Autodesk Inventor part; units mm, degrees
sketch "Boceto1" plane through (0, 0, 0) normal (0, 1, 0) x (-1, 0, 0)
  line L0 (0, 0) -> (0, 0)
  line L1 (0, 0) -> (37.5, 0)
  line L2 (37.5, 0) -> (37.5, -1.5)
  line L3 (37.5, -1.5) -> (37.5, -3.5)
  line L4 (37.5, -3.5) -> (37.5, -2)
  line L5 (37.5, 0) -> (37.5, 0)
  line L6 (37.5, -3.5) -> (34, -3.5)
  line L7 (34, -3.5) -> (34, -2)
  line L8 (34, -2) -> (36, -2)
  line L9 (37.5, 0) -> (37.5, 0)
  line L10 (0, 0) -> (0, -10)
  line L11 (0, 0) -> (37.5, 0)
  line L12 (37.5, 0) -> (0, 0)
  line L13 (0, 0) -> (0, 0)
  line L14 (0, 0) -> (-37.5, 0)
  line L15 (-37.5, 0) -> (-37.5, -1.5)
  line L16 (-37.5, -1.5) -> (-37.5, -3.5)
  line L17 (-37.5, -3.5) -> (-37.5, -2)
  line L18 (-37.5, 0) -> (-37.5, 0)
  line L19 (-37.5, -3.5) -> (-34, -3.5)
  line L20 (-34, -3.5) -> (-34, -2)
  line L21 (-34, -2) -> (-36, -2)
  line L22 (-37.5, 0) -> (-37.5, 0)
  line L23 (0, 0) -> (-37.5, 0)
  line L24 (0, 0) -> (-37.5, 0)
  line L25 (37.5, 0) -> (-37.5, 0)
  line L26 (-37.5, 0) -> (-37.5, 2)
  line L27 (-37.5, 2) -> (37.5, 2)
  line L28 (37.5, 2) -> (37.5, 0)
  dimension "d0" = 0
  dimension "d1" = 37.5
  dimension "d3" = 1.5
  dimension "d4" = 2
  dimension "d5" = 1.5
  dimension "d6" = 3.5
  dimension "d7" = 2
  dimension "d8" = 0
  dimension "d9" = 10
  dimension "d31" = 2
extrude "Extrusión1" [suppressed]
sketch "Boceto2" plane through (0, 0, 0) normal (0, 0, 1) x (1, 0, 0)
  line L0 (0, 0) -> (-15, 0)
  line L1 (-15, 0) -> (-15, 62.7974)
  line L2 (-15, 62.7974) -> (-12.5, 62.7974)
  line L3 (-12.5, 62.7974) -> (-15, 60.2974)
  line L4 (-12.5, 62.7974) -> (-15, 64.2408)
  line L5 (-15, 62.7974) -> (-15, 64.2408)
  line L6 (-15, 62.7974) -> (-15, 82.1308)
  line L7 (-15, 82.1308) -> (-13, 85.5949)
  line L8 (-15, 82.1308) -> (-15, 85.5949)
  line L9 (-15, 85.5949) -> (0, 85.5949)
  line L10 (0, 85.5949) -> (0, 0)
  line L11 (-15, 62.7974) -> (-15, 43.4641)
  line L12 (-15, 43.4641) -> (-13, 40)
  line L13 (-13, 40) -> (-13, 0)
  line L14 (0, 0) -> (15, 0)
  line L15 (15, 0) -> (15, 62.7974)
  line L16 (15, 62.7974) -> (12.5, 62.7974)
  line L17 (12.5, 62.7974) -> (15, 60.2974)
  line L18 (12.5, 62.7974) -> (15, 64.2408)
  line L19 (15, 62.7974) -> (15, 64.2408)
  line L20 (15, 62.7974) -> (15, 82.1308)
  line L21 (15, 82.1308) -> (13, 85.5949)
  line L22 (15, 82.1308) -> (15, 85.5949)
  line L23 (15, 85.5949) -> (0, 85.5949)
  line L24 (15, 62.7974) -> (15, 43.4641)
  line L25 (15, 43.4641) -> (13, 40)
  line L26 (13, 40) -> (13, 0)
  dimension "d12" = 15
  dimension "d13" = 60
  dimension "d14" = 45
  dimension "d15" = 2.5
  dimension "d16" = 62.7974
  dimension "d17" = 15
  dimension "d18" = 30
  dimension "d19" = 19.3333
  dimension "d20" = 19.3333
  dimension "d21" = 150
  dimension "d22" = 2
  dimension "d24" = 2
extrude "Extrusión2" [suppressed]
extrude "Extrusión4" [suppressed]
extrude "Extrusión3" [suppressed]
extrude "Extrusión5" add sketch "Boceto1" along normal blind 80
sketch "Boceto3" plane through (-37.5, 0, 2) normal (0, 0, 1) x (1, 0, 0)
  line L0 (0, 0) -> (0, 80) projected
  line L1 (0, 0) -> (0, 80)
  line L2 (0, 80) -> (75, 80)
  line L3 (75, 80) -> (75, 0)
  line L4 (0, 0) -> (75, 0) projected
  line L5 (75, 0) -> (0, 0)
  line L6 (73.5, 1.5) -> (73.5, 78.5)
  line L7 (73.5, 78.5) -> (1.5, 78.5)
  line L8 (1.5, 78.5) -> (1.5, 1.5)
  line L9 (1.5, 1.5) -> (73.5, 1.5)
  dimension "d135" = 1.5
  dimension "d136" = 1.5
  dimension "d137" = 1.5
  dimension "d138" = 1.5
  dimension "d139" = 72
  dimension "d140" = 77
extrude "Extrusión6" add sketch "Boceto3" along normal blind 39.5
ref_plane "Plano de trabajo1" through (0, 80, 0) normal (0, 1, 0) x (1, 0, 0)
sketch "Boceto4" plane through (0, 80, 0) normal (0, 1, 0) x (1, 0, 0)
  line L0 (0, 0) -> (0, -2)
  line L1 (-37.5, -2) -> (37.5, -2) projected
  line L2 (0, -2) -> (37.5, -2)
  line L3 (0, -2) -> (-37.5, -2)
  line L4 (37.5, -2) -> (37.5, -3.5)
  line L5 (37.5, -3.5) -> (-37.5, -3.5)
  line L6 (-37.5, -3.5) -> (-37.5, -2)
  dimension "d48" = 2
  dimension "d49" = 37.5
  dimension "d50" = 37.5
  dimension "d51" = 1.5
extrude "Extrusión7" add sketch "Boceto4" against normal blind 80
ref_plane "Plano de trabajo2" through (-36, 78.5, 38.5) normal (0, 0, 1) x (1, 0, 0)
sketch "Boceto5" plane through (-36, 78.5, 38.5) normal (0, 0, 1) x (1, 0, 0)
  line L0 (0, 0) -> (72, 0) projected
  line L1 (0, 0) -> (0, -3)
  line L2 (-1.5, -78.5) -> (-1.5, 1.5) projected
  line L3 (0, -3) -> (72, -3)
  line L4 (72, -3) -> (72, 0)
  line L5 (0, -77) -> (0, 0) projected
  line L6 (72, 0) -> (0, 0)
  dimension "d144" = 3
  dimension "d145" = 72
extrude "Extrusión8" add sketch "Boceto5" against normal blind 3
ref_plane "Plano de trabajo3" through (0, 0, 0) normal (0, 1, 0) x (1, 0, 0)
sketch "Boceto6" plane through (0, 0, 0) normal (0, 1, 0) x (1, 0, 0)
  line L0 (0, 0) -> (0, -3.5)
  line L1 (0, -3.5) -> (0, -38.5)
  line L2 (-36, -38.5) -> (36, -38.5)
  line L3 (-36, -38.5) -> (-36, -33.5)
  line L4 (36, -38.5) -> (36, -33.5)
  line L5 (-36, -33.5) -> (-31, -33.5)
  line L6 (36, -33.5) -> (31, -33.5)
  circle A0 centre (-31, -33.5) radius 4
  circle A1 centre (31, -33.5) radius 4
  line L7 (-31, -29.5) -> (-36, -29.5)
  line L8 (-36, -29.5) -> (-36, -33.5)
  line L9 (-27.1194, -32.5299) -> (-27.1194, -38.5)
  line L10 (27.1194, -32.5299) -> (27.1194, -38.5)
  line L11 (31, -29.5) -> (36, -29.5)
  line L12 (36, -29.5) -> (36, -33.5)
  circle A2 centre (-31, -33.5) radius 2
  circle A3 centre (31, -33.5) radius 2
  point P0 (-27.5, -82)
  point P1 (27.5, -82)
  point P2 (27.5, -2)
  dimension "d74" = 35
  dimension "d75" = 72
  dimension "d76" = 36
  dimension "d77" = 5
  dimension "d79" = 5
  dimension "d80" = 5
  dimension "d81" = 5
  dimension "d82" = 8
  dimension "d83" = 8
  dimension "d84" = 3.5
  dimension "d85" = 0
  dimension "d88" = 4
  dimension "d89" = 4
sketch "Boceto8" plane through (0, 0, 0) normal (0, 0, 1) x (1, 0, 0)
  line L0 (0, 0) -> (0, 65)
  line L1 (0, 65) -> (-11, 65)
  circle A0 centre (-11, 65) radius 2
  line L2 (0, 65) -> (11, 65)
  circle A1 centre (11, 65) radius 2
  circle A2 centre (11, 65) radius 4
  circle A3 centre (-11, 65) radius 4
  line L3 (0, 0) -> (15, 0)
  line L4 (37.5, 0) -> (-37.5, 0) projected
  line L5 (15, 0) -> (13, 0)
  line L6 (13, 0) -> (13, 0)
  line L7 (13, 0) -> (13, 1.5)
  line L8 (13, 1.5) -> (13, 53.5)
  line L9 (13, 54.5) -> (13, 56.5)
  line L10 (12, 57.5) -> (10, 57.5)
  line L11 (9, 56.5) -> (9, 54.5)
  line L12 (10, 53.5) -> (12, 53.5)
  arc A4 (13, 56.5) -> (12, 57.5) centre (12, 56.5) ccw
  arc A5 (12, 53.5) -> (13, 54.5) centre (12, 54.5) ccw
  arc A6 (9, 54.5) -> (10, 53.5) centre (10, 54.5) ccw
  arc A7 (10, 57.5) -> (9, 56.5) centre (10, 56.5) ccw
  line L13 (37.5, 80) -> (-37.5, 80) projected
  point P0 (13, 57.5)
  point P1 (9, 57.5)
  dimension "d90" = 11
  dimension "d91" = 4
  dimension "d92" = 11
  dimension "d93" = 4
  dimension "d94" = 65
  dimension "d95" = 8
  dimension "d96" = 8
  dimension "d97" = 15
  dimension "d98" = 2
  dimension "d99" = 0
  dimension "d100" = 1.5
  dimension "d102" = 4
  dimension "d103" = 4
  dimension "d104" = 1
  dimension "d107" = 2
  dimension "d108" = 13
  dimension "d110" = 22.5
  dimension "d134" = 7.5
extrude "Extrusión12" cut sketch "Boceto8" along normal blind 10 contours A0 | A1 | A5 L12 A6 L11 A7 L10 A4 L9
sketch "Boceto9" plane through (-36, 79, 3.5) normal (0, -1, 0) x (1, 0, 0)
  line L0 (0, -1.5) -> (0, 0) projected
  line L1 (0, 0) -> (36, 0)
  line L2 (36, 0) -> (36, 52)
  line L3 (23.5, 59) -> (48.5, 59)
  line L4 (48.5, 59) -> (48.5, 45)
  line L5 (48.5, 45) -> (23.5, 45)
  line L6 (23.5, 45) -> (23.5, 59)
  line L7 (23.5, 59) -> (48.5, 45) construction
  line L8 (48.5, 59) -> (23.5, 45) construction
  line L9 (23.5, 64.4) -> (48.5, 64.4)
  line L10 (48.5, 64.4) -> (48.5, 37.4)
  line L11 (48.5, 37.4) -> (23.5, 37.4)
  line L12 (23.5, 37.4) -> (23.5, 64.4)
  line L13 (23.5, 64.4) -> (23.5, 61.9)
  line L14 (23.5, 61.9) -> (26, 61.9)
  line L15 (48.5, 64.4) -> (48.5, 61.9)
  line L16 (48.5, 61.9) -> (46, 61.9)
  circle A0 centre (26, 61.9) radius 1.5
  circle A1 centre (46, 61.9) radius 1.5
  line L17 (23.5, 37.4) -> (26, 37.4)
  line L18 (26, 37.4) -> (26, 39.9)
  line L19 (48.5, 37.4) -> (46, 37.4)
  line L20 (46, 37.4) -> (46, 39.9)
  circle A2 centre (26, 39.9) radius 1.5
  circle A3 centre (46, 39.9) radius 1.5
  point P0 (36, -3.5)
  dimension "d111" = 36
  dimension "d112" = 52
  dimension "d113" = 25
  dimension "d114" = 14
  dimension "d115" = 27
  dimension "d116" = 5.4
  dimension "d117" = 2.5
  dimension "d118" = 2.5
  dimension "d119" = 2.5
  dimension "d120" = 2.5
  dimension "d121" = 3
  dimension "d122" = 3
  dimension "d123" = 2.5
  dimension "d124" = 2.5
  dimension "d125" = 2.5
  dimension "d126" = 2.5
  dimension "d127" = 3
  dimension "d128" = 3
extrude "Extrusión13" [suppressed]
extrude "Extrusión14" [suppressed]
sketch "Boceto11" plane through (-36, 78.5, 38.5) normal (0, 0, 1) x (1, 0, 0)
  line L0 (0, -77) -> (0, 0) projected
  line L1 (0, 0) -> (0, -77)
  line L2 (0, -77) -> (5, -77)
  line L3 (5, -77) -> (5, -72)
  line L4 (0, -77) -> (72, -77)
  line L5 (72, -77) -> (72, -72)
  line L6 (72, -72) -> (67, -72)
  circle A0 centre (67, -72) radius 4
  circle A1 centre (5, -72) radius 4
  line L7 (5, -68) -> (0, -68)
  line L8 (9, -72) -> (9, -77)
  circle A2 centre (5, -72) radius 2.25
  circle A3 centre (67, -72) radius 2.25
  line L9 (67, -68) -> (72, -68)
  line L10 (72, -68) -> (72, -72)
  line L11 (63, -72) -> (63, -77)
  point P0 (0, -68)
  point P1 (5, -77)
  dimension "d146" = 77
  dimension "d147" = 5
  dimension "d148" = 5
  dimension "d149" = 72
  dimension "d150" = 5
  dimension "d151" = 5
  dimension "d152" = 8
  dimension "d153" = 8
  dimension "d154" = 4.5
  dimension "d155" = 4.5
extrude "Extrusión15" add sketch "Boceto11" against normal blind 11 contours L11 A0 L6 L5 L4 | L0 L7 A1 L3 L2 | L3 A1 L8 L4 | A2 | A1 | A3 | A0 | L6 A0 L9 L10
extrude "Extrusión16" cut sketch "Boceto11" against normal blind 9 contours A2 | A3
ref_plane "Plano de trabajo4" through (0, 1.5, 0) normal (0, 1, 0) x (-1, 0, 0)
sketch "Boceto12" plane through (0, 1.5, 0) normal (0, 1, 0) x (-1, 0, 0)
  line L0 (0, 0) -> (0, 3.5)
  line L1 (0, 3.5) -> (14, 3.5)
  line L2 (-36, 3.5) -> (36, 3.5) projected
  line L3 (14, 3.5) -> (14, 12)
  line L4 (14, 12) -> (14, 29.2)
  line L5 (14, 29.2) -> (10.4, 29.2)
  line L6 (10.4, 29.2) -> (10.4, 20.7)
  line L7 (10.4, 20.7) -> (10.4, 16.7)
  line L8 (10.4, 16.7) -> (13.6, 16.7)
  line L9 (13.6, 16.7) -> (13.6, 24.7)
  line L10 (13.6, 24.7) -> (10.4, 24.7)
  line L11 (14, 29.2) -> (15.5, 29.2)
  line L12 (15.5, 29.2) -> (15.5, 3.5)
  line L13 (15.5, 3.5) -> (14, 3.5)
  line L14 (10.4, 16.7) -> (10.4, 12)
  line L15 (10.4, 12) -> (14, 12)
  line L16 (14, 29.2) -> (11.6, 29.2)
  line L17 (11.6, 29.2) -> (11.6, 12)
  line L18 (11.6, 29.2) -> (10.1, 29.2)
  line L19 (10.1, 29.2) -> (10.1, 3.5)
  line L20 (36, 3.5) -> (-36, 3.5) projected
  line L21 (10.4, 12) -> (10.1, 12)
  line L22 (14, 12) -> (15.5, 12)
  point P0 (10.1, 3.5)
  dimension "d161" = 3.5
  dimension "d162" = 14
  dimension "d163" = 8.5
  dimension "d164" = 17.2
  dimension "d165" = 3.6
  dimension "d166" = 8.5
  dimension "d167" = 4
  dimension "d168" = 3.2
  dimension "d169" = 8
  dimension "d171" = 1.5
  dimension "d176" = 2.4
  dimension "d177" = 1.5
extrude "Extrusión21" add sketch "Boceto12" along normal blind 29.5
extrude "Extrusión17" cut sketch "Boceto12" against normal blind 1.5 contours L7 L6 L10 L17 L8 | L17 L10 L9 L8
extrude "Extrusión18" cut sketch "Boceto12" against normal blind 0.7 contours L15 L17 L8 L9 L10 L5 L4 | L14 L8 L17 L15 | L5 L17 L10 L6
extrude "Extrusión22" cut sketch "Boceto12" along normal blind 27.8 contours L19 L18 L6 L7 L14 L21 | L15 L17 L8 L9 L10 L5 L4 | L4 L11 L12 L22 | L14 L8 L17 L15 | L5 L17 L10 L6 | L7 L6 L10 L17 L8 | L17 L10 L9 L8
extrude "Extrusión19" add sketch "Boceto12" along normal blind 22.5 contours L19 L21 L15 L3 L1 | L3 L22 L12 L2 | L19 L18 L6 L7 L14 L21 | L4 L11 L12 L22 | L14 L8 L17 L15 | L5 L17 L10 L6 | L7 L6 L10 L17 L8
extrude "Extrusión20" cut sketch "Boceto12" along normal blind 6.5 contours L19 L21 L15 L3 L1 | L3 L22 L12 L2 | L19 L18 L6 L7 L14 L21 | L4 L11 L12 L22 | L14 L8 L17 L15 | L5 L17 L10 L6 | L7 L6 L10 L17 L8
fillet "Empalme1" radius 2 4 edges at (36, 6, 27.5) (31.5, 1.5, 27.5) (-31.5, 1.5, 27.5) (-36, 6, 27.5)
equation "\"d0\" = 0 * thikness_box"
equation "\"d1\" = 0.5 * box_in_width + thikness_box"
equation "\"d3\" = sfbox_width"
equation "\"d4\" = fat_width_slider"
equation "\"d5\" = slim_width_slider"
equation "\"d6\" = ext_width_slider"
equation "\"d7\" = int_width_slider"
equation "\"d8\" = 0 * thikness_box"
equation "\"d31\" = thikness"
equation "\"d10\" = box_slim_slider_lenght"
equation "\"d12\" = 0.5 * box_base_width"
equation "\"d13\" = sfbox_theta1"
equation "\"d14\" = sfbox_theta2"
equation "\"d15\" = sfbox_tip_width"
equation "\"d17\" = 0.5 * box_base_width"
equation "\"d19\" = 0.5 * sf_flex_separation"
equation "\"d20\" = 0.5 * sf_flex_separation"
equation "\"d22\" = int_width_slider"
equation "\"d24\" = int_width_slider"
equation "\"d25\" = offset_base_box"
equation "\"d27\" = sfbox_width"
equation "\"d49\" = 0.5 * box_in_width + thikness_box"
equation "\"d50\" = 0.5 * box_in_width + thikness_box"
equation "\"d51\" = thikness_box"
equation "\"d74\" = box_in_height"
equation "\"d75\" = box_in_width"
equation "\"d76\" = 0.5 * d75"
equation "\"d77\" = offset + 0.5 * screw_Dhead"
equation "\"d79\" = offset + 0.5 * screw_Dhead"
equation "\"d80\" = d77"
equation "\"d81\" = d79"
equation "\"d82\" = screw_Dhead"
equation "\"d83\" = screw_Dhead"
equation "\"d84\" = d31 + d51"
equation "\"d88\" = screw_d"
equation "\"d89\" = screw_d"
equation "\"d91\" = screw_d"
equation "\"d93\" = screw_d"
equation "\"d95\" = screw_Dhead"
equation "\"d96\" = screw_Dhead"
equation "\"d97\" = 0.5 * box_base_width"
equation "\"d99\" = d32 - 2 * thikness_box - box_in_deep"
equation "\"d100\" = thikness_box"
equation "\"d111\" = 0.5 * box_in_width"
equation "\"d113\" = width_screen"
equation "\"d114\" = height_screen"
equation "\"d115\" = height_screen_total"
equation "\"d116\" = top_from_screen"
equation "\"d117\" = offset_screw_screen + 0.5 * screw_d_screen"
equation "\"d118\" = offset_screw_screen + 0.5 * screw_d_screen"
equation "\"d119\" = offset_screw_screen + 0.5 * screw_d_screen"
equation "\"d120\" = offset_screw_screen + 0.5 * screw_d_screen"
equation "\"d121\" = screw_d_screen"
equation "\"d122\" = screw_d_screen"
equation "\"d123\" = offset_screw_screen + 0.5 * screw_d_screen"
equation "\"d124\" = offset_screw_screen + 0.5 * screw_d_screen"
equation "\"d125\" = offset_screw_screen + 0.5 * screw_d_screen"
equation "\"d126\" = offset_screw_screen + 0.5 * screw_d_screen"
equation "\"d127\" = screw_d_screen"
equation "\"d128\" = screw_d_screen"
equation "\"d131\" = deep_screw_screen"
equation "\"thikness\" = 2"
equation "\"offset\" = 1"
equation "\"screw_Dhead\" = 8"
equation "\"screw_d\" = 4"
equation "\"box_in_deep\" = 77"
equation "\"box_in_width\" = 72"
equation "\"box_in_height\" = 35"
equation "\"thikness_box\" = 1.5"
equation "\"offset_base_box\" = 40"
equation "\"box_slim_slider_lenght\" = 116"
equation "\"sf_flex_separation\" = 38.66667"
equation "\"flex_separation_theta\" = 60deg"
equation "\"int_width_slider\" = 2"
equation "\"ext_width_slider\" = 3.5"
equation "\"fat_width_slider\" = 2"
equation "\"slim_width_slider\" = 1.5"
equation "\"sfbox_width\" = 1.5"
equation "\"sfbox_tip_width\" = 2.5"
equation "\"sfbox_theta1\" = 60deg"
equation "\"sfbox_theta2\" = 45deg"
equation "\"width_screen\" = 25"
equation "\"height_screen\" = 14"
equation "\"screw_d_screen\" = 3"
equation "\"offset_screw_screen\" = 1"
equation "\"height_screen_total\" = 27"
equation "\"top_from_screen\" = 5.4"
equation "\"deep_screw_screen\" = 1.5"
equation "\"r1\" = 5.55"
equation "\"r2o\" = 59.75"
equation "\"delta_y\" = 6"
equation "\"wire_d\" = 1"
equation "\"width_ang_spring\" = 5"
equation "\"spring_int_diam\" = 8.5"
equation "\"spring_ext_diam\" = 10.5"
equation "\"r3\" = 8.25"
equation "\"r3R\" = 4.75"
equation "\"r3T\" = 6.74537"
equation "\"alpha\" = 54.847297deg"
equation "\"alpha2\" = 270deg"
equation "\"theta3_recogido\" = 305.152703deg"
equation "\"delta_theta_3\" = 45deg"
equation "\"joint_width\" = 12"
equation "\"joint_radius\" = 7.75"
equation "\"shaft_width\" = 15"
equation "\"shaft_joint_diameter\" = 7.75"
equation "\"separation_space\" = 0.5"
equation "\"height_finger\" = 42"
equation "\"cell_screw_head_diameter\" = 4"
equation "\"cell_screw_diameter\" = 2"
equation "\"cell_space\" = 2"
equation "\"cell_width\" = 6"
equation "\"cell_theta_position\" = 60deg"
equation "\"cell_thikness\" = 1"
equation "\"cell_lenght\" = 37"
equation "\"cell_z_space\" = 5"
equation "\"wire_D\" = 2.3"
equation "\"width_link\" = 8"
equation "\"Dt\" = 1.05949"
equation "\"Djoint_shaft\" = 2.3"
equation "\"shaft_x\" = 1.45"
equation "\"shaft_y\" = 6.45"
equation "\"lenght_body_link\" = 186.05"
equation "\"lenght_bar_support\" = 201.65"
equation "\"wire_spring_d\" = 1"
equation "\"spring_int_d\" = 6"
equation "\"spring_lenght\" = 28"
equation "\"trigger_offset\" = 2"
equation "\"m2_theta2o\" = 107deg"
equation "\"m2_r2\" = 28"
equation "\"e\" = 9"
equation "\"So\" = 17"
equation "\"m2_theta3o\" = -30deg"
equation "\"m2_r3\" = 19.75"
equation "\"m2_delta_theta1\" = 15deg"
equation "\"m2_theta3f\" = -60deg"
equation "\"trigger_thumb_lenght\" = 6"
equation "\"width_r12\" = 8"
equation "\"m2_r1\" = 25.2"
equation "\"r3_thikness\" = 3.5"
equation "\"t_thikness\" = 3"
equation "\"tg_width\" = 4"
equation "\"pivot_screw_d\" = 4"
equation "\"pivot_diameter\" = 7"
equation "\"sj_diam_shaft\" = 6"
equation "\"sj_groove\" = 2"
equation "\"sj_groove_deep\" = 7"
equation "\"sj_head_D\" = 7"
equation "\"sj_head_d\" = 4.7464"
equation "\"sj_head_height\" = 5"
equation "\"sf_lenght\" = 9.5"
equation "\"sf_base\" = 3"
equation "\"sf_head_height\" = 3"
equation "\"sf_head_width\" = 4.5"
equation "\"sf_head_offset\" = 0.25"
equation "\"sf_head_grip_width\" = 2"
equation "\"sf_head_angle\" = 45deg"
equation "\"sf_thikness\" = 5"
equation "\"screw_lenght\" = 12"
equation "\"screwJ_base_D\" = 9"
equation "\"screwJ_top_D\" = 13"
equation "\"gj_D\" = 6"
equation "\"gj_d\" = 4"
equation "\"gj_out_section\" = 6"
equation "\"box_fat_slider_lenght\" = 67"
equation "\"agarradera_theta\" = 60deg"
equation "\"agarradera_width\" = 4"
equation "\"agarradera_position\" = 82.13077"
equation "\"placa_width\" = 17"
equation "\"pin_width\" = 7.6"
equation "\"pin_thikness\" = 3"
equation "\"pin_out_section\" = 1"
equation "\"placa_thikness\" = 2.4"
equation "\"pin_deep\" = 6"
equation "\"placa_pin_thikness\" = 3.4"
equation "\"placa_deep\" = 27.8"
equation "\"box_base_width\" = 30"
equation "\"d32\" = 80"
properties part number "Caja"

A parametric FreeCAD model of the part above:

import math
import FreeCAD as App
import Part
import Sketcher
from FreeCAD import Vector


def edges_at(feature, points):
    """Names of the edges that pass closest to the given points."""
    edges = feature.Shape.Edges
    near = lambda p: min(range(len(edges)), key=lambda i: edges[i].distToShape(Part.Vertex(*p))[0])
    return sorted({f"Edge{near(p) + 1}" for p in points})


def add_polygon(sketch, points):
    """Adds a closed chain of lines whose ends are joined by coincident constraints."""
    first, n = sketch.GeometryCount, len(points)
    for a, b in zip(points, points[1:] + points[:1]):
        sketch.addGeometry(Part.LineSegment(App.Vector(*a, 0), App.Vector(*b, 0)), False)
    for i in range(n):
        sketch.addConstraint(Sketcher.Constraint("Coincident", first + i, 2, first + (i + 1) % n, 1))

doc = App.newDocument("Part")
body = doc.addObject("PartDesign::Body", "Body")

sketch1 = body.newObject("Sketcher::SketchObject", "Sketch")
sketch1.AttachmentSupport = (doc.getObject("XZ_Plane"), [""])
sketch1.MapMode = "FlatFace"
add_polygon(sketch1, [(37.5, 0), (-37.5, 0), (-37.5, 2), (37.5, 2)])
sketch1.addConstraint([
    Sketcher.Constraint("Horizontal", 0),
    Sketcher.Constraint("Vertical", 1),
    Sketcher.Constraint("Horizontal", 2),
    Sketcher.Constraint("Vertical", 3),
    Sketcher.Constraint("Symmetric", 0, 2, 3, 2, -1, 1),
    Sketcher.Constraint("DistanceY", 1, 1, 1, 2, 2.0),
    Sketcher.Constraint("DistanceX", 0, 2, -1, 1, 37.5),
])
pad1 = body.newObject("PartDesign::Pad", "Pad")
pad1.Profile = sketch1
pad1.Length = 80
pad1.Reversed = True

sketch2 = body.newObject("Sketcher::SketchObject", "Sketch001")
sketch2.AttachmentSupport = (doc.getObject("XY_Plane"), [""])
sketch2.MapMode = "FlatFace"
sketch2.AttachmentOffset = App.Placement(Vector(0, 0, 2), App.Rotation())
add_polygon(sketch2, [(-38, 80), (-38, 0), (38, 0), (38, 80)])
add_polygon(sketch2, [(36, 78), (36, 2), (-36, 2), (-36, 78)])
sketch2.addConstraint([
    Sketcher.Constraint("Vertical", 0),
    Sketcher.Constraint("Horizontal", 1),
    Sketcher.Constraint("Vertical", 2),
    Sketcher.Constraint("Horizontal", 3),
    Sketcher.Constraint("Vertical", 4),
    Sketcher.Constraint("Horizontal", 5),
    Sketcher.Constraint("Vertical", 6),
    Sketcher.Constraint("Horizontal", 7),
    Sketcher.Constraint("Symmetric", 0, 2, 1, 2, -1, 1),
    Sketcher.Constraint("DistanceX", 5, 2, 5, 1, 72.0),
    Sketcher.Constraint("DistanceY", 4, 2, 4, 1, 77.0),
    Sketcher.Constraint("DistanceY", -1, 1, 4, 2, 1.5),
    Sketcher.Constraint("DistanceX", 4, 2, 1, 2, 1.5),
    Sketcher.Constraint("DistanceX", 0, 2, 5, 2, 1.5),
    Sketcher.Constraint("DistanceY", 6, 2, 3, 2, 1.5),
])
pad2 = body.newObject("PartDesign::Pad", "Pad001")
pad2.Profile = sketch2
pad2.Length = 39.5

sketch3 = body.newObject("Sketcher::SketchObject", "Sketch002")
sketch3.AttachmentSupport = (doc.getObject("XZ_Plane"), [""])
sketch3.MapMode = "FlatFace"
sketch3.AttachmentOffset = App.Placement(Vector(0, 0, -80), App.Rotation())
add_polygon(sketch3, [(37.5, 2), (-37.5, 2), (-37.5, 3.5), (37.5, 3.5)])
sketch3.addConstraint([
    Sketcher.Constraint("Horizontal", 0),
    Sketcher.Constraint("Vertical", 1),
    Sketcher.Constraint("Horizontal", 2),
    Sketcher.Constraint("Vertical", 3),
    Sketcher.Constraint("DistanceY", 1, 1, 1, 2, 1.5),
    Sketcher.Constraint("DistanceY", -1, 1, 0, 2, 2.0),
    Sketcher.Constraint("DistanceX", 0, 2, -1, 1, 37.5),
    Sketcher.Constraint("DistanceX", -1, 1, 2, 2, 37.5),
])
pad3 = body.newObject("PartDesign::Pad", "Pad002")
pad3.Profile = sketch3
pad3.Length = 80

sketch4 = body.newObject("Sketcher::SketchObject", "Sketch003")
sketch4.AttachmentSupport = (doc.getObject("XY_Plane"), [""])
sketch4.MapMode = "FlatFace"
sketch4.AttachmentOffset = App.Placement(Vector(0, 0, 38.5), App.Rotation())
add_polygon(sketch4, [(36, 78.5), (-36, 78.5), (-36, 75.5), (36, 75.5)])
sketch4.addConstraint([
    Sketcher.Constraint("Horizontal", 0),
    Sketcher.Constraint("Vertical", 1),
    Sketcher.Constraint("Horizontal", 2),
    Sketcher.Constraint("Vertical", 3),
    Sketcher.Constraint("DistanceX", 0, 2, 0, 1, 72.0),
    Sketcher.Constraint("DistanceY", 1, 2, 1, 1, 3.0),
    Sketcher.Constraint("DistanceX", 0, 2, -1, 1, 36.0),
    Sketcher.Constraint("DistanceY", -1, 1, 0, 2, 78.5),
])
pad4 = body.newObject("PartDesign::Pad", "Pad003")
pad4.Profile = sketch4
pad4.Length = 3
pad4.Reversed = True

sketch5 = body.newObject("Sketcher::SketchObject", "Sketch004")
sketch5.AttachmentSupport = (doc.getObject("XY_Plane"), [""])
sketch5.MapMode = "FlatFace"
sketch5.addGeometry([
    Part.Circle(Vector(-11, 65, 0), Vector(0, 0, 1), 2),
    Part.Circle(Vector(11, 65, 0), Vector(0, 0, 1), 2),
    Part.ArcOfCircle(Part.Circle(Vector(12, 54.5, 0), Vector(0, 0, 1), 1), math.radians(-90), math.radians(0)),
    Part.LineSegment(Vector(13, 54.5, 0), Vector(13, 56.5, 0)),
    Part.ArcOfCircle(Part.Circle(Vector(12, 56.5, 0), Vector(0, 0, 1), 1), math.radians(0), math.radians(90)),
    Part.LineSegment(Vector(12, 57.5, 0), Vector(10, 57.5, 0)),
    Part.ArcOfCircle(Part.Circle(Vector(10, 56.5, 0), Vector(0, 0, 1), 1), math.radians(90), math.radians(180)),
    Part.LineSegment(Vector(9, 56.5, 0), Vector(9, 54.5, 0)),
    Part.ArcOfCircle(Part.Circle(Vector(10, 54.5, 0), Vector(0, 0, 1), 1), math.radians(180), math.radians(270)),
    Part.LineSegment(Vector(10, 53.5, 0), Vector(12, 53.5, 0)),
], False)
sketch5.addConstraint([
    Sketcher.Constraint("Tangent", 2, 2, 3, 1),
    Sketcher.Constraint("Tangent", 3, 2, 4, 1),
    Sketcher.Constraint("Tangent", 4, 2, 5, 1),
    Sketcher.Constraint("Tangent", 5, 2, 6, 1),
    Sketcher.Constraint("Tangent", 6, 2, 7, 1),
    Sketcher.Constraint("Tangent", 7, 2, 8, 1),
    Sketcher.Constraint("Tangent", 8, 2, 9, 1),
    Sketcher.Constraint("Tangent", 9, 2, 2, 1),
    Sketcher.Constraint("Vertical", 3),
    Sketcher.Constraint("Horizontal", 5),
    Sketcher.Constraint("Vertical", 7),
    Sketcher.Constraint("Horizontal", 9),
    Sketcher.Constraint("Equal", 0, 1),
    Sketcher.Constraint("Equal", 2, 4),
    Sketcher.Constraint("Equal", 4, 6),
    Sketcher.Constraint("Equal", 6, 8),
    Sketcher.Constraint("Symmetric", 0, 3, 1, 3, -2),
    Sketcher.Constraint("Equal", 9, 3),
    Sketcher.Constraint("Diameter", 0, 4.0),
    Sketcher.Constraint("Radius", 2, 1.0),
    Sketcher.Constraint("DistanceX", 5, 2, 5, 1, 2.0),
    Sketcher.Constraint("DistanceX", 0, 3, -1, 1, 11.0),
    Sketcher.Constraint("DistanceY", -1, 1, 0, 3, 65.0),
    Sketcher.Constraint("DistanceX", -1, 1, 2, 2, 13.0),
    Sketcher.Constraint("DistanceY", -1, 1, 2, 3, 54.5),
])
pocket1 = body.newObject("PartDesign::Pocket", "Pocket")
pocket1.Profile = sketch5
pocket1.Length = 10
pocket1.Reversed = True

sketch6 = body.newObject("Sketcher::SketchObject", "Sketch005")
sketch6.AttachmentSupport = (doc.getObject("XY_Plane"), [""])
sketch6.MapMode = "FlatFace"
sketch6.AttachmentOffset = App.Placement(Vector(0, 0, 38.5), App.Rotation())
sketch6.addGeometry([
    Part.LineSegment(Vector(27, 6.5, 0), Vector(27, 1.5, 0)),
    Part.LineSegment(Vector(27, 1.5, 0), Vector(36, 1.5, 0)),
    Part.LineSegment(Vector(36, 1.5, 0), Vector(36, 10.5, 0)),
    Part.LineSegment(Vector(36, 10.5, 0), Vector(31, 10.5, 0)),
    Part.ArcOfCircle(Part.Circle(Vector(31, 6.5, 0), Vector(0, 0, 1), 4), math.radians(90), math.radians(180)),
    Part.LineSegment(Vector(-36, 10.5, 0), Vector(-36, 1.5, 0)),
    Part.LineSegment(Vector(-36, 1.5, 0), Vector(-27, 1.5, 0)),
    Part.LineSegment(Vector(-27, 1.5, 0), Vector(-27, 6.5, 0)),
    Part.ArcOfCircle(Part.Circle(Vector(-31, 6.5, 0), Vector(0, 0, 1), 4), math.radians(0), math.radians(90)),
    Part.LineSegment(Vector(-31, 10.5, 0), Vector(-36, 10.5, 0)),
], False)
sketch6.addConstraint([
    Sketcher.Constraint("Coincident", 0, 2, 1, 1),
    Sketcher.Constraint("Coincident", 1, 2, 2, 1),
    Sketcher.Constraint("Coincident", 2, 2, 3, 1),
    Sketcher.Constraint("Tangent", 3, 2, 4, 1),
    Sketcher.Constraint("Tangent", 4, 2, 0, 1),
    Sketcher.Constraint("Coincident", 5, 2, 6, 1),
    Sketcher.Constraint("Coincident", 6, 2, 7, 1),
    Sketcher.Constraint("Tangent", 7, 2, 8, 1),
    Sketcher.Constraint("Tangent", 8, 2, 9, 1),
    Sketcher.Constraint("Coincident", 9, 2, 5, 1),
    Sketcher.Constraint("Vertical", 0),
    Sketcher.Constraint("Horizontal", 1),
    Sketcher.Constraint("Vertical", 2),
    Sketcher.Constraint("Horizontal", 3),
    Sketcher.Constraint("Vertical", 5),
    Sketcher.Constraint("Horizontal", 6),
    Sketcher.Constraint("Vertical", 7),
    Sketcher.Constraint("Horizontal", 9),
    Sketcher.Constraint("Equal", 4, 8),
    Sketcher.Constraint("Symmetric", 4, 3, 8, 3, -2),
    Sketcher.Constraint("Symmetric", 1, 2, 5, 2, -2),
    Sketcher.Constraint("Equal", 9, 0),
    Sketcher.Constraint("Radius", 4, 4.0),
    Sketcher.Constraint("DistanceX", 3, 2, 3, 1, 5.0),
    Sketcher.Constraint("DistanceX", -1, 1, 4, 3, 31.0),
    Sketcher.Constraint("DistanceY", -1, 1, 4, 3, 6.5),
])
pad5 = body.newObject("PartDesign::Pad", "Pad004")
pad5.Profile = sketch6
pad5.Length = 11
pad5.Reversed = True

sketch7 = body.newObject("Sketcher::SketchObject", "Sketch006")
sketch7.AttachmentSupport = (doc.getObject("XY_Plane"), [""])
sketch7.MapMode = "FlatFace"
sketch7.AttachmentOffset = App.Placement(Vector(0, 0, 38.5), App.Rotation())
sketch7.addGeometry([
    Part.Circle(Vector(-31, 6.5, 0), Vector(0, 0, 1), 2.2),
    Part.Circle(Vector(31, 6.5, 0), Vector(0, 0, 1), 2.2),
], False)
sketch7.addConstraint([
    Sketcher.Constraint("Equal", 0, 1),
    Sketcher.Constraint("Symmetric", 0, 3, 1, 3, -2),
    Sketcher.Constraint("Diameter", 0, 4.5),
    Sketcher.Constraint("DistanceX", 0, 3, -1, 1, 31.0),
    Sketcher.Constraint("DistanceY", -1, 1, 0, 3, 6.5),
])
pocket2 = body.newObject("PartDesign::Pocket", "Pocket001")
pocket2.Profile = sketch7
pocket2.Length = 9

sketch8 = body.newObject("Sketcher::SketchObject", "Sketch007")
sketch8.AttachmentSupport = (doc.getObject("XZ_Plane"), [""])
sketch8.MapMode = "FlatFace"
sketch8.AttachmentOffset = App.Placement(Vector(0, 0, -1.5), App.Rotation())
add_polygon(sketch8, [(-10, 4), (-16, 4), (-16, 29), (-10, 29)])
sketch8.addConstraint([
    Sketcher.Constraint("Horizontal", 0),
    Sketcher.Constraint("Vertical", 1),
    Sketcher.Constraint("Horizontal", 2),
    Sketcher.Constraint("Vertical", 3),
    Sketcher.Constraint("DistanceY", -1, 1, 0, 2, 3.5),
    Sketcher.Constraint("DistanceX", 0, 2, 0, 1, 5.4),
    Sketcher.Constraint("DistanceY", 1, 1, 1, 2, 25.7),
    Sketcher.Constraint("DistanceX", 0, 2, -1, 1, 15.5),
])
pad6 = body.newObject("PartDesign::Pad", "Pad005")
pad6.Profile = sketch8
pad6.Length = 29.5
pad6.Reversed = True

sketch9 = body.newObject("Sketcher::SketchObject", "Sketch008")
sketch9.AttachmentSupport = (doc.getObject("XZ_Plane"), [""])
sketch9.MapMode = "FlatFace"
sketch9.AttachmentOffset = App.Placement(Vector(0, 0, -1.5), App.Rotation())
add_polygon(sketch9, [(-10.4, 16.7), (-13.6, 16.7), (-13.6, 24.7), (-10.4, 24.7)])
sketch9.addConstraint([
    Sketcher.Constraint("Horizontal", 0),
    Sketcher.Constraint("Vertical", 1),
    Sketcher.Constraint("Horizontal", 2),
    Sketcher.Constraint("Vertical", 3),
    Sketcher.Constraint("DistanceY", 1, 1, 1, 2, 8.0),
    Sketcher.Constraint("DistanceX", 0, 2, 0, 1, 3.2),
    Sketcher.Constraint("DistanceX", 0, 2, -1, 1, 13.6),
    Sketcher.Constraint("DistanceY", -1, 1, 0, 2, 16.7),
])
pocket3 = body.newObject("PartDesign::Pocket", "Pocket002")
pocket3.Profile = sketch9
pocket3.Length = 1.5
pocket3.Reversed = True

sketch10 = body.newObject("Sketcher::SketchObject", "Sketch009")
sketch10.AttachmentSupport = (doc.getObject("XZ_Plane"), [""])
sketch10.MapMode = "FlatFace"
sketch10.AttachmentOffset = App.Placement(Vector(0, 0, -1.5), App.Rotation())
add_polygon(sketch10, [(-14, 12), (-14, 29.2), (-10.4, 29.2), (-10.4, 24.7), (-13.6, 24.7), (-13.6, 16.7), (-10.4, 16.7), (-10.4, 12)])
sketch10.addConstraint([
    Sketcher.Constraint("Vertical", 0),
    Sketcher.Constraint("Horizontal", 1),
    Sketcher.Constraint("Vertical", 2),
    Sketcher.Constraint("Horizontal", 3),
    Sketcher.Constraint("Vertical", 4),
    Sketcher.Constraint("Horizontal", 5),
    Sketcher.Constraint("Vertical", 6),
    Sketcher.Constraint("Horizontal", 7),
    Sketcher.Constraint("Vertical", 2, 2, 5, 2),
    Sketcher.Constraint("DistanceY", 4, 2, 4, 1, 8.0),
    Sketcher.Constraint("DistanceX", 1, 1, 1, 2, 3.6),
    Sketcher.Constraint("DistanceX", 3, 2, 3, 1, 3.2),
    Sketcher.Constraint("DistanceY", 0, 1, 0, 2, 17.2),
    Sketcher.Constraint("DistanceX", 0, 2, -1, 1, 14.0),
    Sketcher.Constraint("DistanceY", 2, 2, 2, 1, 4.5),
    Sketcher.Constraint("DistanceY", -1, 1, 6, 2, 12.0),
])
pocket4 = body.newObject("PartDesign::Pocket", "Pocket003")
pocket4.Profile = sketch10
pocket4.Length = 0.7
pocket4.Reversed = True

sketch11 = body.newObject("Sketcher::SketchObject", "Sketch010")
sketch11.AttachmentSupport = (doc.getObject("XZ_Plane"), [""])
sketch11.MapMode = "FlatFace"
sketch11.AttachmentOffset = App.Placement(Vector(0, 0, -1.5), App.Rotation())
add_polygon(sketch11, [(-10, 29), (-10, 12), (-16, 12), (-16, 29)])
sketch11.addConstraint([
    Sketcher.Constraint("Vertical", 0),
    Sketcher.Constraint("Horizontal", 1),
    Sketcher.Constraint("Vertical", 2),
    Sketcher.Constraint("Horizontal", 3),
    Sketcher.Constraint("DistanceY", 0, 2, 0, 1, 17.2),
    Sketcher.Constraint("DistanceX", 1, 2, 1, 1, 5.4),
    Sketcher.Constraint("DistanceY", -1, 1, 0, 2, 12.0),
    Sketcher.Constraint("DistanceX", 0, 2, -1, 1, 10.1),
])
pocket5 = body.newObject("PartDesign::Pocket", "Pocket004")
pocket5.Profile = sketch11
pocket5.Length = 27.8

sketch12 = body.newObject("Sketcher::SketchObject", "Sketch011")
sketch12.AttachmentSupport = (doc.getObject("XZ_Plane"), [""])
sketch12.MapMode = "FlatFace"
sketch12.AttachmentOffset = App.Placement(Vector(0, 0, -1.5), App.Rotation())
add_polygon(sketch12, [(-10.1, 3.5), (-15.5, 3.5), (-15.5, 29.2), (-14, 29.2), (-14, 12), (-11.6, 12), (-11.6, 29.2), (-10.1, 29.2)])
sketch12.addConstraint([
    Sketcher.Constraint("Horizontal", 0),
    Sketcher.Constraint("Vertical", 1),
    Sketcher.Constraint("Horizontal", 2),
    Sketcher.Constraint("Vertical", 3),
    Sketcher.Constraint("Horizontal", 4),
    Sketcher.Constraint("Vertical", 5),
    Sketcher.Constraint("Horizontal", 6),
    Sketcher.Constraint("Vertical", 7),
    Sketcher.Constraint("Horizontal", 2, 2, 5, 2),
    Sketcher.Constraint("Equal", 2, 6),
    Sketcher.Constraint("DistanceX", 2, 1, 2, 2, 1.5),
    Sketcher.Constraint("DistanceX", 4, 1, 4, 2, 2.4),
    Sketcher.Constraint("DistanceY", 3, 2, 3, 1, 17.2),
    Sketcher.Constraint("DistanceX", 2, 2, -1, 1, 14.0),
    Sketcher.Constraint("DistanceY", -1, 1, 0, 2, 3.5),
    Sketcher.Constraint("DistanceY", 0, 2, 3, 2, 8.5),
])
pad7 = body.newObject("PartDesign::Pad", "Pad006")
pad7.Profile = sketch12
pad7.Length = 22.5
pad7.Reversed = True

sketch13 = body.newObject("Sketcher::SketchObject", "Sketch012")
sketch13.AttachmentSupport = (doc.getObject("XZ_Plane"), [""])
sketch13.MapMode = "FlatFace"
sketch13.AttachmentOffset = App.Placement(Vector(0, 0, -1.5), App.Rotation())
add_polygon(sketch13, [(-10.1, 3.5), (-15.5, 3.5), (-15.5, 29.2), (-14, 29.2), (-14, 12), (-11.6, 12), (-11.6, 29.2), (-10.1, 29.2)])
sketch13.addConstraint([
    Sketcher.Constraint("Horizontal", 0),
    Sketcher.Constraint("Vertical", 1),
    Sketcher.Constraint("Horizontal", 2),
    Sketcher.Constraint("Vertical", 3),
    Sketcher.Constraint("Horizontal", 4),
    Sketcher.Constraint("Vertical", 5),
    Sketcher.Constraint("Horizontal", 6),
    Sketcher.Constraint("Vertical", 7),
    Sketcher.Constraint("Horizontal", 2, 2, 5, 2),
    Sketcher.Constraint("Equal", 2, 6),
    Sketcher.Constraint("DistanceX", 2, 1, 2, 2, 1.5),
    Sketcher.Constraint("DistanceX", 4, 1, 4, 2, 2.4),
    Sketcher.Constraint("DistanceY", 3, 2, 3, 1, 17.2),
    Sketcher.Constraint("DistanceX", 2, 2, -1, 1, 14.0),
    Sketcher.Constraint("DistanceY", -1, 1, 0, 2, 3.5),
    Sketcher.Constraint("DistanceY", 0, 2, 3, 2, 8.5),
])
pocket6 = body.newObject("PartDesign::Pocket", "Pocket005")
pocket6.Profile = sketch13
pocket6.Length = 6.5
doc.recompute()

fillet = body.newObject("PartDesign::Fillet", "Fillet")
fillet.Base = (pocket6, edges_at(pocket6, [
    (36, 6, 27.5),
    (31.5, 1.5, 27.5),
    (-31.5, 1.5, 27.5),
    (-36, 6, 27.5),
]))
fillet.Radius = 2

doc.recompute()
